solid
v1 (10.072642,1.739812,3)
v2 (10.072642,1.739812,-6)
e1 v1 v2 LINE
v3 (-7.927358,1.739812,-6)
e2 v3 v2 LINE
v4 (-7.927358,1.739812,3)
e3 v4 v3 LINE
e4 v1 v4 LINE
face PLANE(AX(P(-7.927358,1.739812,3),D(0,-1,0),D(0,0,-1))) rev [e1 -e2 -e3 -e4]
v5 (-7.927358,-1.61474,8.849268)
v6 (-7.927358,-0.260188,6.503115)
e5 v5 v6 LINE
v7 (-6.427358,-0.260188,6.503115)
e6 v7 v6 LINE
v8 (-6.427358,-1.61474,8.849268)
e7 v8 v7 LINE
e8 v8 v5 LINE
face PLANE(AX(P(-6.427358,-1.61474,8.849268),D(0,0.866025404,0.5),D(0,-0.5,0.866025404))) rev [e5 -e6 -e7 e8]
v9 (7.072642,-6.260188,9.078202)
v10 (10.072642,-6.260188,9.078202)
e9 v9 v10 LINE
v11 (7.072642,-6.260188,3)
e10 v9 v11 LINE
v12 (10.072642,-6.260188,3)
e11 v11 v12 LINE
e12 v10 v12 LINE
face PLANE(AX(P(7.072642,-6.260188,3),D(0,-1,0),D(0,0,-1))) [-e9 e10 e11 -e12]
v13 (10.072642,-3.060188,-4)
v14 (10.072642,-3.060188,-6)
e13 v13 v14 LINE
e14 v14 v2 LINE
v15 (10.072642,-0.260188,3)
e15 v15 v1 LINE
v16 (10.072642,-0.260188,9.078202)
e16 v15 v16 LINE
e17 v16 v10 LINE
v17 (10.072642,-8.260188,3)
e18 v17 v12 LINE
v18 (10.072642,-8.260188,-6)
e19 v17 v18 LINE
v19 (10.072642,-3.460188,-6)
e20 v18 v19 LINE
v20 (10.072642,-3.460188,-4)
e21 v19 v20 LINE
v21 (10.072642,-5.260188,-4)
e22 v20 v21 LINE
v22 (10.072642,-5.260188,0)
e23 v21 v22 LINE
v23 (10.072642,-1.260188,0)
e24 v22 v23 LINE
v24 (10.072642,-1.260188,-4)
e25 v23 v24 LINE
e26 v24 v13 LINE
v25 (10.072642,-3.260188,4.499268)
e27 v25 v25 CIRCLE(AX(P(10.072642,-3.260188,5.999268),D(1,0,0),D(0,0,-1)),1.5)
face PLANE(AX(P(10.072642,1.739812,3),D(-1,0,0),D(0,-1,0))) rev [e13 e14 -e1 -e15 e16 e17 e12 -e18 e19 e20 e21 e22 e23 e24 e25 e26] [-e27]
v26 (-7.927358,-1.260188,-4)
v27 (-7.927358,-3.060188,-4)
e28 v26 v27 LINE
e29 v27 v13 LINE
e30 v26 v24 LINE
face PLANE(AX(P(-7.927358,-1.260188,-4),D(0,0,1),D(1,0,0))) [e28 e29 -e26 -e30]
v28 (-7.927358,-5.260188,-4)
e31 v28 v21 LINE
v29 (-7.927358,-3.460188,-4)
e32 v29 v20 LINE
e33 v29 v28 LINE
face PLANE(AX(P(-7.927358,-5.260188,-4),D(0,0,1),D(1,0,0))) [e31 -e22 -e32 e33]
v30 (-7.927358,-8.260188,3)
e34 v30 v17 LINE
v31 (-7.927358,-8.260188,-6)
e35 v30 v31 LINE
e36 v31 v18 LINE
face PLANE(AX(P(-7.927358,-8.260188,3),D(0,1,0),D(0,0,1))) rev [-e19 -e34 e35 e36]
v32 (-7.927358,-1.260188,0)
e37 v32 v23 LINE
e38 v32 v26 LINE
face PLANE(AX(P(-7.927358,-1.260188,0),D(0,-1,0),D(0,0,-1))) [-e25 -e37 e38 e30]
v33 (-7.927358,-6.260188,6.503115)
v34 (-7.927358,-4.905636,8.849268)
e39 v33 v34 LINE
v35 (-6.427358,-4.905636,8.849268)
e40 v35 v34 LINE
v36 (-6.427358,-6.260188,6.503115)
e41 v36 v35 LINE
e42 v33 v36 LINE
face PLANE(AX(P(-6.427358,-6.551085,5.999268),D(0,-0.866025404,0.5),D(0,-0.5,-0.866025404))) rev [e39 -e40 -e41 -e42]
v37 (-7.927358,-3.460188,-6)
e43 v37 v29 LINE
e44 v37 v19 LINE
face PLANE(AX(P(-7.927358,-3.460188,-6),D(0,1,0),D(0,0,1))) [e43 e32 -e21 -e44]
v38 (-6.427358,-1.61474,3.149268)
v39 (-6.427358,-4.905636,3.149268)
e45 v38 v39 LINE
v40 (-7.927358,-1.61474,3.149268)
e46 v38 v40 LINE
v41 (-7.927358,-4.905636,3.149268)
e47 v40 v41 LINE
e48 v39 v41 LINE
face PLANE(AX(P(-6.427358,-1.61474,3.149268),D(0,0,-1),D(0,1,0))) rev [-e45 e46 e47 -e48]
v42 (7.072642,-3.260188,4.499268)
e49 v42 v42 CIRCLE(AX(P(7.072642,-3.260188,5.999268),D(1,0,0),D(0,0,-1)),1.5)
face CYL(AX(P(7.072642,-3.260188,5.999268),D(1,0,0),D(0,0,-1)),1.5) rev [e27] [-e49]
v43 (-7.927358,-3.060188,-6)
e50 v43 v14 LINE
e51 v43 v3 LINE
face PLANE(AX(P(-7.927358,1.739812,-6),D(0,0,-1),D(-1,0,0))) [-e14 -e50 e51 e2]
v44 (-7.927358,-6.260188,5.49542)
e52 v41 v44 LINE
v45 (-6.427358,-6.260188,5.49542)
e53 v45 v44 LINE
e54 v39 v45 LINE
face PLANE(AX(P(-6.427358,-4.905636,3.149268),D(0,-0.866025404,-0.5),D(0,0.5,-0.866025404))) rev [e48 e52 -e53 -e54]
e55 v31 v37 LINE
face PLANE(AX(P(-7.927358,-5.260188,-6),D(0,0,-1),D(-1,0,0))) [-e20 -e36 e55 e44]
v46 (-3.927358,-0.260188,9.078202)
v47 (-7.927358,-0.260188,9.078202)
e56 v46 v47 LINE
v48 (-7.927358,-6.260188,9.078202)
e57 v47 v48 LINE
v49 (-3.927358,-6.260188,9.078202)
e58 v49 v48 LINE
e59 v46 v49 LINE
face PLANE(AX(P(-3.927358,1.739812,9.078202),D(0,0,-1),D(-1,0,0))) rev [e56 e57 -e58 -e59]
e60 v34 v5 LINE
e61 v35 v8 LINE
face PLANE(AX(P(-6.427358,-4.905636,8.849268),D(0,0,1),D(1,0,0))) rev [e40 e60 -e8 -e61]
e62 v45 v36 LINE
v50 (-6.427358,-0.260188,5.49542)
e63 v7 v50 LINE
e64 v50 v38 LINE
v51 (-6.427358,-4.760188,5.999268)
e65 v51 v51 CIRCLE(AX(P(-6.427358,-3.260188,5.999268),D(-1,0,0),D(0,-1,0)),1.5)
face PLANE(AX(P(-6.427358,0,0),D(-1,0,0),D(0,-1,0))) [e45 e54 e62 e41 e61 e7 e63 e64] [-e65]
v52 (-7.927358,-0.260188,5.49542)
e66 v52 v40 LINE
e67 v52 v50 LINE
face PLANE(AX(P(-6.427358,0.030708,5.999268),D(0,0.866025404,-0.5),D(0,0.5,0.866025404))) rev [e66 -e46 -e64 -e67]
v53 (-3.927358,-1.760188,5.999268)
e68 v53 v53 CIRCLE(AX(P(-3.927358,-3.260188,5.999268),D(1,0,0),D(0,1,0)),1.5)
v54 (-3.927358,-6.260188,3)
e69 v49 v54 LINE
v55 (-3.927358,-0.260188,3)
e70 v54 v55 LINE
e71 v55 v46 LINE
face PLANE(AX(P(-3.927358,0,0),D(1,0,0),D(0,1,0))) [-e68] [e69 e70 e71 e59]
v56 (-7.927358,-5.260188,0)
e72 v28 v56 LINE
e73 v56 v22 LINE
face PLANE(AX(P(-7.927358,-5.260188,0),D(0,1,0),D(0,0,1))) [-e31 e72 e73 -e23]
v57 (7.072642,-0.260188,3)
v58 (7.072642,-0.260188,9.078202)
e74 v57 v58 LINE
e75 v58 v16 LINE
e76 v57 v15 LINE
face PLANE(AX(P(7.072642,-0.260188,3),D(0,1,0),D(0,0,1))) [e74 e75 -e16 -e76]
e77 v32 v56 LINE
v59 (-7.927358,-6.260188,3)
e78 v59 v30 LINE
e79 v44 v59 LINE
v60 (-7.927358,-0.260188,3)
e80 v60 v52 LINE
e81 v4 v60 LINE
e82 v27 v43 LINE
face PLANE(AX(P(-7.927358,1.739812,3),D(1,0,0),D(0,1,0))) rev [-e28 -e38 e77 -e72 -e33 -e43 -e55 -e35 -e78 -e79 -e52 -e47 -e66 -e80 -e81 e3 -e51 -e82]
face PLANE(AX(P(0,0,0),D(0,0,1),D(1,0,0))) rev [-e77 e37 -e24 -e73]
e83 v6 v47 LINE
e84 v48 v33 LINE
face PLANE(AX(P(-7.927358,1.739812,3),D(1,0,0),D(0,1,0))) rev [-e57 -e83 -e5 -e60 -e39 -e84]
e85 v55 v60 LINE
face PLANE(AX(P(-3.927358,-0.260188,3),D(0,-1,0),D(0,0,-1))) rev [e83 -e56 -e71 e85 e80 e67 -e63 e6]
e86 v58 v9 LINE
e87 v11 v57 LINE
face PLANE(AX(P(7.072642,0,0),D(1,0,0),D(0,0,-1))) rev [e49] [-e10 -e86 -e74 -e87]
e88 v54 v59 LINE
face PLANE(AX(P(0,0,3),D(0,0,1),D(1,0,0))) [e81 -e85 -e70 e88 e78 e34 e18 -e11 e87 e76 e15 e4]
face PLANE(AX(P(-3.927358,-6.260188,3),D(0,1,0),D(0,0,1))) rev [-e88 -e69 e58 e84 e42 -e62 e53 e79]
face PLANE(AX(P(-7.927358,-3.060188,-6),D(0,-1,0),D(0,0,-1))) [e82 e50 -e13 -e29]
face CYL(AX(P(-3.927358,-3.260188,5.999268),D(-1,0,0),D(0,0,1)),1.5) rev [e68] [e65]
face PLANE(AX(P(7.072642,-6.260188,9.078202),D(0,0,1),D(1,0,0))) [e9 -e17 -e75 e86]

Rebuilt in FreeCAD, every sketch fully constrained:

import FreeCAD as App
import Part
import Sketcher
Q = App.Units.Quantity


def add_polygon(sketch, points):
    """Adds a closed chain of lines whose ends are joined by coincident constraints."""
    first, n = sketch.GeometryCount, len(points)
    for a, b in zip(points, points[1:] + points[:1]):
        sketch.addGeometry(Part.LineSegment(App.Vector(*a, 0), App.Vector(*b, 0)), False)
    for i in range(n):
        sketch.addConstraint(Sketcher.Constraint("Coincident", first + i, 2, first + (i + 1) % n, 1))

doc = App.newDocument("Part")
body = doc.addObject("PartDesign::Body", "Body")

# Sketch on XY plane
sketch1 = body.newObject("Sketcher::SketchObject", "Sketch")
sketch1.AttachmentSupport = (doc.getObject("XY_Plane"), [""])
sketch1.MapMode = "FlatFace"
add_polygon(sketch1, [(-8, 2), (-8, -8), (10, -8), (10, 2)])  # lines 0-3
sketch1.addConstraint([
    Sketcher.Constraint("Vertical", 0),
    Sketcher.Constraint("Horizontal", 1),
    Sketcher.Constraint("Vertical", 2),
    Sketcher.Constraint("Horizontal", 3),
    Sketcher.Constraint("DistanceX", 1, 1, 1, 2, 18.0),
    Sketcher.Constraint("DistanceY", 0, 2, 0, 1, 10.0),
    Sketcher.Constraint("DistanceY", 0, 2, -1, 1, 8.260188),
    Sketcher.Constraint("DistanceX", 0, 2, -1, 1, 7.927358),
])
pad1 = body.newObject("PartDesign::Pad", "Pad")
pad1.Profile = sketch1
pad1.Length = 3

# Sketch on YZ plane
sketch2 = body.newObject("Sketcher::SketchObject", "Sketch001")
sketch2.AttachmentSupport = (doc.getObject("YZ_Plane"), [""])
sketch2.MapMode = "FlatFace"
sketch2.AttachmentOffset = App.Placement(App.Vector(0, 0, 10.072642), App.Rotation())
add_polygon(sketch2, [(-0.3, 9.1), (-6.3, 9.1), (-6.3, 3), (-0.3, 3)])  # lines 0-3
sketch2.addGeometry(Part.Circle(App.Vector(-3.3, 6, 0), App.Vector(0, 0, 1), 1.5), False)  # 4
sketch2.addConstraint([
    Sketcher.Constraint("Horizontal", 0),
    Sketcher.Constraint("Vertical", 1),
    Sketcher.Constraint("Horizontal", 2),
    Sketcher.Constraint("Vertical", 3),
    Sketcher.Constraint("Diameter", 4, 3.0),
    Sketcher.Constraint("DistanceX", 0, 2, 0, 1, 6.0),
    Sketcher.Constraint("DistanceY", -1, 1, 1, 2, 3.0),
    Sketcher.Constraint("DistanceX", 0, 2, 4, 3, 3.0),
    Sketcher.Constraint("DistanceY", 1, 2, 1, 1, 6.078202),
    Sketcher.Constraint("DistanceX", 4, 3, -1, 1, 3.260188),
    Sketcher.Constraint("DistanceY", -1, 1, 4, 3, 5.999268),
])
pad2 = body.newObject("PartDesign::Pad", "Pad001")
pad2.Profile = sketch2
pad2.Length = 3
pad2.Reversed = True

# Sketch on YZ plane
sketch3 = body.newObject("Sketcher::SketchObject", "Sketch002")
sketch3.AttachmentSupport = (doc.getObject("YZ_Plane"), [""])
sketch3.MapMode = "FlatFace"
sketch3.AttachmentOffset = App.Placement(App.Vector(0, 0, -7.927358), App.Rotation())
add_polygon(sketch3, [(-0.3, 9.1), (-6.3, 9.1), (-6.3, 3), (-0.3, 3)])  # lines 0-3
sketch3.addGeometry(Part.Circle(App.Vector(-3.3, 6, 0), App.Vector(0, 0, 1), 1.5), False)  # 4
sketch3.addConstraint([
    Sketcher.Constraint("Horizontal", 0),
    Sketcher.Constraint("Vertical", 1),
    Sketcher.Constraint("Horizontal", 2),
    Sketcher.Constraint("Vertical", 3),
    Sketcher.Constraint("Diameter", 4, 3.0),
    Sketcher.Constraint("DistanceX", 0, 2, 0, 1, 6.0),
    Sketcher.Constraint("DistanceY", -1, 1, 1, 2, 3.0),
    Sketcher.Constraint("DistanceX", 0, 2, 4, 3, 3.0),
    Sketcher.Constraint("DistanceY", 1, 2, 1, 1, 6.078202),
    Sketcher.Constraint("DistanceX", 4, 3, -1, 1, 3.260188),
    Sketcher.Constraint("DistanceY", -1, 1, 4, 3, 5.999268),
])
pad3 = body.newObject("PartDesign::Pad", "Pad002")
pad3.Profile = sketch3
pad3.Length = 4

# Sketch on YZ plane
sketch4 = body.newObject("Sketcher::SketchObject", "Sketch003")
sketch4.AttachmentSupport = (doc.getObject("YZ_Plane"), [""])
sketch4.MapMode = "FlatFace"
sketch4.AttachmentOffset = App.Placement(App.Vector(0, 0, -7.927358), App.Rotation())
add_polygon(sketch4, [(-6.6, 6), (-4.9, 8.8), (-1.6, 8.8), (0, 6), (-1.6, 3.1), (-4.9, 3.1)])  # lines 0-5
sketch4.addConstraint([
    Sketcher.Constraint("Horizontal", 1),
    Sketcher.Constraint("Horizontal", 4),
    Sketcher.Constraint("Parallel", 0, 3),
    Sketcher.Constraint("Parallel", 2, 5),
    Sketcher.Constraint("Horizontal", 2, 2, 5, 2),
    Sketcher.Constraint("Vertical", 1, 2, 3, 2),
    Sketcher.Constraint("Vertical", 0, 2, 4, 2),
    Sketcher.Constraint("Angle", 0, Q("60 deg")),
    Sketcher.Constraint("DistanceY", 3, 2, 1, 2, 5.7),
    Sketcher.Constraint("DistanceX", 1, 1, 1, 2, 3.290897),
    Sketcher.Constraint("DistanceX", 1, 2, -1, 1, 1.61474),
    Sketcher.Constraint("DistanceY", -1, 1, 0, 2, 8.849268),
])
pocket1 = body.newObject("PartDesign::Pocket", "Pocket")
pocket1.Profile = sketch4
pocket1.Length = 1.5
pocket1.Reversed = True

# Sketch on YZ plane
sketch5 = body.newObject("Sketcher::SketchObject", "Sketch004")
sketch5.AttachmentSupport = (doc.getObject("YZ_Plane"), [""])
sketch5.MapMode = "FlatFace"
sketch5.AttachmentOffset = App.Placement(App.Vector(0, 0, 10.072642), App.Rotation())
add_polygon(sketch5, [(-1.3, -4), (-3.1, -4), (-3.1, -6), (1.7, -6), (1.7, 0), (-1.3, 0)])  # lines 0-5
add_polygon(sketch5, [(-8.3, 0), (-8.3, -6), (-3.5, -6), (-3.5, -4), (-5.3, -4), (-5.3, 0)])  # lines 6-11
sketch5.addConstraint([
    Sketcher.Constraint("Horizontal", 0),
    Sketcher.Constraint("Vertical", 1),
    Sketcher.Constraint("Horizontal", 2),
    Sketcher.Constraint("Vertical", 3),
    Sketcher.Constraint("Horizontal", 4),
    Sketcher.Constraint("Vertical", 5),
    Sketcher.Constraint("Vertical", 6),
    Sketcher.Constraint("Horizontal", 7),
    Sketcher.Constraint("Vertical", 8),
    Sketcher.Constraint("Horizontal", 9),
    Sketcher.Constraint("Vertical", 10),
    Sketcher.Constraint("Horizontal", 11),
    Sketcher.Constraint("PointOnObject", 3, 2, -1),
    Sketcher.Constraint("PointOnObject", 10, 2, -1),
    Sketcher.Constraint("Horizontal", 2, 2, 6, 2),
    Sketcher.Constraint("Horizontal", 5, 2, 8, 2),
    Sketcher.Constraint("Equal", 2, 7),
    Sketcher.Constraint("Equal", 0, 9),
    Sketcher.Constraint("DistanceX", 4, 2, 4, 1, 3.0),
    Sketcher.Constraint("DistanceY", 1, 2, 1, 1, 2.0),
    Sketcher.Constraint("DistanceY", 3, 1, 3, 2, 6.0),
    Sketcher.Constraint("DistanceX", 0, 2, 0, 1, 1.8),
    Sketcher.Constraint("DistanceX", 6, 2, 5, 2, 7.0),
    Sketcher.Constraint("DistanceX", 0, 2, -1, 1, 3.060188),
])
pad4 = body.newObject("PartDesign::Pad", "Pad003")
pad4.Profile = sketch5
pad4.Length = 18
pad4.Reversed = True

doc.recompute()
